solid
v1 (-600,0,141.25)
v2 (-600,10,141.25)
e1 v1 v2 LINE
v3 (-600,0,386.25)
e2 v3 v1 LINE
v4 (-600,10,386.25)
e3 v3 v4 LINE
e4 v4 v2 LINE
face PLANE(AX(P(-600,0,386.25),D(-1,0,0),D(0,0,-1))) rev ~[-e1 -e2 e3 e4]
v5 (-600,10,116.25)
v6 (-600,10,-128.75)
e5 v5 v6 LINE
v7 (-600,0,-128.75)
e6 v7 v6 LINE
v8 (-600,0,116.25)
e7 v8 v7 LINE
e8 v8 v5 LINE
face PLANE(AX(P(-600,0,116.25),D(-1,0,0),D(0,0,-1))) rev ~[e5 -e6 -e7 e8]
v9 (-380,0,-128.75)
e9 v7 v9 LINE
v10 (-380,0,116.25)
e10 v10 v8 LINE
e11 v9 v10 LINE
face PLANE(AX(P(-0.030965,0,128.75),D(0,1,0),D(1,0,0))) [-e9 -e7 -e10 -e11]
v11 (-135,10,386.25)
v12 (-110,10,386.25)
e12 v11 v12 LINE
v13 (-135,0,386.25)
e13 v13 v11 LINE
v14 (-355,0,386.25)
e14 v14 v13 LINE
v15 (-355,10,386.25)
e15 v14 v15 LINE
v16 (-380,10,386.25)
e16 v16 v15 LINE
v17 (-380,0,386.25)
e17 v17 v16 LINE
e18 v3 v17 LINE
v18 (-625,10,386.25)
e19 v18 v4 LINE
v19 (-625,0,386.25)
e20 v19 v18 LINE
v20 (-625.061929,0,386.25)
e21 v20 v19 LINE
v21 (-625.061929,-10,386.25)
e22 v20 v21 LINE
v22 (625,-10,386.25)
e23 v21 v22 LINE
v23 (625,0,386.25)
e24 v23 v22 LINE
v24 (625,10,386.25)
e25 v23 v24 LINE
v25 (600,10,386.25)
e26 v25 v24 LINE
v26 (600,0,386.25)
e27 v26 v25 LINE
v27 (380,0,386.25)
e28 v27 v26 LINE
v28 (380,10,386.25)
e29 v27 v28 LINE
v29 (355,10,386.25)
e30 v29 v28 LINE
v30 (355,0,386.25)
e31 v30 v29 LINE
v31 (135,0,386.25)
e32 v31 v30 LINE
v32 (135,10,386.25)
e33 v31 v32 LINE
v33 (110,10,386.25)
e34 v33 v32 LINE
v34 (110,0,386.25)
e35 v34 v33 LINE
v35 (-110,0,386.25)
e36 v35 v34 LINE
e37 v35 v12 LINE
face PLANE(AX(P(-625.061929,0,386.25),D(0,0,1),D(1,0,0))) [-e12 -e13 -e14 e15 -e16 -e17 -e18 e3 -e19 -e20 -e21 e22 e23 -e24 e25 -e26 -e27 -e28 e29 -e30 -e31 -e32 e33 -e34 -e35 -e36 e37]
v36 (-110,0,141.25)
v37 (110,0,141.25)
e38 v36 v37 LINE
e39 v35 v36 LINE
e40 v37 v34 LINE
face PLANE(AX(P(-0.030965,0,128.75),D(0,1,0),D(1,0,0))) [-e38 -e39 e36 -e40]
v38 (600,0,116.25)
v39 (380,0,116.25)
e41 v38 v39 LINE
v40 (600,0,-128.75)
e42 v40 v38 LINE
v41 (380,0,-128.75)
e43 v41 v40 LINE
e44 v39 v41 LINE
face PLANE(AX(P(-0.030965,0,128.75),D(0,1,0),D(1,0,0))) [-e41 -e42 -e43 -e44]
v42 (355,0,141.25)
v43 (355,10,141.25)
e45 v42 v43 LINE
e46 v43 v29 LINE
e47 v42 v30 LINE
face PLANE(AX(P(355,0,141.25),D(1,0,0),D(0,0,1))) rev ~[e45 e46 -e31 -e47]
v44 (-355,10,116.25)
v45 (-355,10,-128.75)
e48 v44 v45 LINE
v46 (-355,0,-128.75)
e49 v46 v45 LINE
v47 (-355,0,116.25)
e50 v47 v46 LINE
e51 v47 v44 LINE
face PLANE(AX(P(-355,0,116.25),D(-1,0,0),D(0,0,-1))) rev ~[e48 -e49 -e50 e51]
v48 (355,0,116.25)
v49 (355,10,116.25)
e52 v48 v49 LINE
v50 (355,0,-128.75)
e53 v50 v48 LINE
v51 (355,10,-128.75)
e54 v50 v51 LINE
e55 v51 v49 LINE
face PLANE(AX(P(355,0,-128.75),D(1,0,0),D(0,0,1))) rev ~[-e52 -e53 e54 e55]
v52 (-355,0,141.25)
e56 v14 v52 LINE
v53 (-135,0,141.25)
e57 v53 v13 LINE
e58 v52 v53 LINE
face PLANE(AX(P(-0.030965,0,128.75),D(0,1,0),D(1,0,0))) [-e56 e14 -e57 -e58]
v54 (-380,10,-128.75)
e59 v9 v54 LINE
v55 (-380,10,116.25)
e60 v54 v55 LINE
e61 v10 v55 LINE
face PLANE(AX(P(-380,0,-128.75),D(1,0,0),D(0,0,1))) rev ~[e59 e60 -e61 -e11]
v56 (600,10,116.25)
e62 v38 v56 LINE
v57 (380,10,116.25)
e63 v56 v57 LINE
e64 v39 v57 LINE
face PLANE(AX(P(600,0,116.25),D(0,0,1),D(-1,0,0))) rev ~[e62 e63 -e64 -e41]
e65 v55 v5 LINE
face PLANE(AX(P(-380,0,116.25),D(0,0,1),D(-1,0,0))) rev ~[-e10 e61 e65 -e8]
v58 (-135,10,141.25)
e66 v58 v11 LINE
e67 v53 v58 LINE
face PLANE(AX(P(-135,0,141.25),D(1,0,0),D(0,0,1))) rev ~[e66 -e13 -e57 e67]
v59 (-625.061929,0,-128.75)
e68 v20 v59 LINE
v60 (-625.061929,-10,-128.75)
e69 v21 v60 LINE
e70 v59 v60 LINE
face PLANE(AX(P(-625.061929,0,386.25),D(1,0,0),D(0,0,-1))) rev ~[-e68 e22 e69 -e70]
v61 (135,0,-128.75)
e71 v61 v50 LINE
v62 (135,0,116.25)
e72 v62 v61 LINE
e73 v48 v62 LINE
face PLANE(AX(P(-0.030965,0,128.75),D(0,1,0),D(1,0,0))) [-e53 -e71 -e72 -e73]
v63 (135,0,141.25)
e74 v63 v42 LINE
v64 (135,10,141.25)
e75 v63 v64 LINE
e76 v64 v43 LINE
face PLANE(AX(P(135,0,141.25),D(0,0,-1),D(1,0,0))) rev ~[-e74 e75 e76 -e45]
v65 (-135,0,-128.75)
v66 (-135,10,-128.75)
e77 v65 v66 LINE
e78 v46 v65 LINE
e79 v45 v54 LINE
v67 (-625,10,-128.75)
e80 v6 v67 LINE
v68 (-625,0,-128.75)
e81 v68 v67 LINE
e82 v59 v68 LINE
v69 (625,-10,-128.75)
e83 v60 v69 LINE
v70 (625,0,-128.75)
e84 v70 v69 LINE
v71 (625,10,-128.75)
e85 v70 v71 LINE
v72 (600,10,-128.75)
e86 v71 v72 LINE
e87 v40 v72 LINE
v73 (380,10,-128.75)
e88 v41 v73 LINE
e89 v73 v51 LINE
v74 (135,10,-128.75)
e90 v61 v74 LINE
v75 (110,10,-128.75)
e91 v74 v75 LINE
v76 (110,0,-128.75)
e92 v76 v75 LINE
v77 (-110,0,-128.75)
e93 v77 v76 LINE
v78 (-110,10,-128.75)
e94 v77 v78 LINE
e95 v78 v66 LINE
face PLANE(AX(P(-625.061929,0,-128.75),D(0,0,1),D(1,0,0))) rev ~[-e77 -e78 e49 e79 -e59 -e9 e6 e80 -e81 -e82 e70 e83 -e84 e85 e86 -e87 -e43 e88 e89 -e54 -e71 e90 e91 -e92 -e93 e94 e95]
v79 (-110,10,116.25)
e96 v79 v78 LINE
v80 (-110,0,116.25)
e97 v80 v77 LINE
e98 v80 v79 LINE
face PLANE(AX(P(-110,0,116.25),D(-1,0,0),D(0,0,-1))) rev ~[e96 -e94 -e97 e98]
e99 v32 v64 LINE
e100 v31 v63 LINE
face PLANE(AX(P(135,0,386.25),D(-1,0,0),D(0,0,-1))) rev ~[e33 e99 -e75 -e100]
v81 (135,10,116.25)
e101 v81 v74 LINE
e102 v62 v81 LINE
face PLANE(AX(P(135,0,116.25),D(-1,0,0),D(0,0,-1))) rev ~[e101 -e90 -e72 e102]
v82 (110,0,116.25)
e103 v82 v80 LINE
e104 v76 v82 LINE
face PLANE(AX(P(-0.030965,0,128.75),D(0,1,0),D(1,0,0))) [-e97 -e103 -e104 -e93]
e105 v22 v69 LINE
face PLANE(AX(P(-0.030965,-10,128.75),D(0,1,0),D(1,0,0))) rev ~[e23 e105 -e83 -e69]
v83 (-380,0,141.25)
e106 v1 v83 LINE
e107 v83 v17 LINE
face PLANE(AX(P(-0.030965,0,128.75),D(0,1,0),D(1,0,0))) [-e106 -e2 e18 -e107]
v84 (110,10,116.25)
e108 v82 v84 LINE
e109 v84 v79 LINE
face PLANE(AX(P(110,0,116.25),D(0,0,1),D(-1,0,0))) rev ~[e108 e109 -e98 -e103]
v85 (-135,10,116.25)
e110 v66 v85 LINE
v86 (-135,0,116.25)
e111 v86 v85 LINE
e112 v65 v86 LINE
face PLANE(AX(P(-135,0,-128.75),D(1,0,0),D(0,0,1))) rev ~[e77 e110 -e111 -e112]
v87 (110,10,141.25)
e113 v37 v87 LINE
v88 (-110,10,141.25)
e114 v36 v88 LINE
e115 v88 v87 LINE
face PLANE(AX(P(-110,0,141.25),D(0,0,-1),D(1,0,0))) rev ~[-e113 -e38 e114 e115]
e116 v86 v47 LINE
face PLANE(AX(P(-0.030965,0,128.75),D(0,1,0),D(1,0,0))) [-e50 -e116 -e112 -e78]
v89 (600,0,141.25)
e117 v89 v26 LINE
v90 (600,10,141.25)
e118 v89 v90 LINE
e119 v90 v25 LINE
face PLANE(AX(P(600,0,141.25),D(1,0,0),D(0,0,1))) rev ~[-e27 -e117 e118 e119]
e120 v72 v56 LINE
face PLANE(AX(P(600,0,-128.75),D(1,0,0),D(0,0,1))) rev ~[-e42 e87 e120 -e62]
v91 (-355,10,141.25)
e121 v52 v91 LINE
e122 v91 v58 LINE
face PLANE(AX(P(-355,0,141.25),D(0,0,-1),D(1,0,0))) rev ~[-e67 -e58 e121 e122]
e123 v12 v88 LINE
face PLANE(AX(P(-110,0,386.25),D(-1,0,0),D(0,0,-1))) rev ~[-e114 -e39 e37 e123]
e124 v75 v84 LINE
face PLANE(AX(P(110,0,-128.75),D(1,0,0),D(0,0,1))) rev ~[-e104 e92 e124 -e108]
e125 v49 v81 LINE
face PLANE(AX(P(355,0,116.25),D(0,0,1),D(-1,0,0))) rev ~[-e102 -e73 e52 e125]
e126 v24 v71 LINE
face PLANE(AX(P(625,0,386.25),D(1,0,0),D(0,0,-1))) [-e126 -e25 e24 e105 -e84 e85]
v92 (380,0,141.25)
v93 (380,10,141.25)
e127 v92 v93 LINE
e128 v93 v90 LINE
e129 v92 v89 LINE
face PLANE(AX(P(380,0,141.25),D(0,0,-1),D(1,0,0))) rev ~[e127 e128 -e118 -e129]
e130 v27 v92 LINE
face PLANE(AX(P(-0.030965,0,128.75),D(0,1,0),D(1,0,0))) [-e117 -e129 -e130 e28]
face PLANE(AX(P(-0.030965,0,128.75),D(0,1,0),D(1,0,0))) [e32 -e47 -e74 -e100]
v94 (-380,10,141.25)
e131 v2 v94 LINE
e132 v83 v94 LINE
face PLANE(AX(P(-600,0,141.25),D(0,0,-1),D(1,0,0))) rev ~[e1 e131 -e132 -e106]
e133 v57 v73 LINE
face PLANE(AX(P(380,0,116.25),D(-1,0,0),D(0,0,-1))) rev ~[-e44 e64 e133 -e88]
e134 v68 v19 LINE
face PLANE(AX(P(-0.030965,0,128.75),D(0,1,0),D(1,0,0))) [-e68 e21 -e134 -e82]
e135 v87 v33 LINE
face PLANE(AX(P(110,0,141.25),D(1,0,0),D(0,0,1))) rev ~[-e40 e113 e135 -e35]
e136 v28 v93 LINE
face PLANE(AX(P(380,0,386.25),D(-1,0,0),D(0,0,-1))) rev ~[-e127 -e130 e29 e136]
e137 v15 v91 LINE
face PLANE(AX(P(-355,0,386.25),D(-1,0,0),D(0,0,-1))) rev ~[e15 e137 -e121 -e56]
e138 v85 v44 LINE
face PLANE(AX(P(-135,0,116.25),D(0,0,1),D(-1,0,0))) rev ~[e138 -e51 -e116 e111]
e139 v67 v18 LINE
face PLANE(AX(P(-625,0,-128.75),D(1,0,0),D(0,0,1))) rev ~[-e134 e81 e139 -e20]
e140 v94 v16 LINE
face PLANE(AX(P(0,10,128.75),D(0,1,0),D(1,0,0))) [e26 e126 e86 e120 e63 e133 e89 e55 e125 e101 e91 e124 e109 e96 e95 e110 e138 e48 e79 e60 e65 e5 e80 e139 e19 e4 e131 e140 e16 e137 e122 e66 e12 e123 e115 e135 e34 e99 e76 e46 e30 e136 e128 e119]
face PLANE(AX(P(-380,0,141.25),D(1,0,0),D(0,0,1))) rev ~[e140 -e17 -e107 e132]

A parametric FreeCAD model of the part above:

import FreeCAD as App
import Part
import Sketcher

V = App.Vector
Q = App.Units.Quantity

doc = App.newDocument("Part")
body = doc.addObject("PartDesign::Body", "Body")

# Sketch on XZ plane
sketch1 = body.newObject("Sketcher::SketchObject", "Sketch")
sketch1.AttachmentSupport = (doc.getObject("XZ_Plane"), [""])
sketch1.MapMode = "FlatFace"
sketch1.addGeometry(Part.LineSegment(V(-110, -129, 0), V(-135, -129, 0)), False)
sketch1.addGeometry(Part.LineSegment(V(-135, -129, 0), V(-135, 116, 0)), False)
sketch1.addGeometry(Part.LineSegment(V(-135, 116, 0), V(-355, 116, 0)), False)
sketch1.addGeometry(Part.LineSegment(V(-355, 116, 0), V(-355, -129, 0)), False)
sketch1.addGeometry(Part.LineSegment(V(-355, -129, 0), V(-380, -129, 0)), False)
sketch1.addGeometry(Part.LineSegment(V(-380, -129, 0), V(-380, 116, 0)), False)
sketch1.addGeometry(Part.LineSegment(V(-380, 116, 0), V(-600, 116, 0)), False)
sketch1.addGeometry(Part.LineSegment(V(-600, 116, 0), V(-600, -129, 0)), False)
sketch1.addGeometry(Part.LineSegment(V(-600, -129, 0), V(-625, -129, 0)), False)
sketch1.addGeometry(Part.LineSegment(V(-625, -129, 0), V(-625, 386, 0)), False)
sketch1.addGeometry(Part.LineSegment(V(-625, 386, 0), V(-600, 386, 0)), False)
sketch1.addGeometry(Part.LineSegment(V(-600, 386, 0), V(-600, 141, 0)), False)
sketch1.addGeometry(Part.LineSegment(V(-600, 141, 0), V(-380, 141, 0)), False)
sketch1.addGeometry(Part.LineSegment(V(-380, 141, 0), V(-380, 386, 0)), False)
sketch1.addGeometry(Part.LineSegment(V(-380, 386, 0), V(-355, 386, 0)), False)
sketch1.addGeometry(Part.LineSegment(V(-355, 386, 0), V(-355, 141, 0)), False)
sketch1.addGeometry(Part.LineSegment(V(-355, 141, 0), V(-135, 141, 0)), False)
sketch1.addGeometry(Part.LineSegment(V(-135, 141, 0), V(-135, 386, 0)), False)
sketch1.addGeometry(Part.LineSegment(V(-135, 386, 0), V(-110, 386, 0)), False)
sketch1.addGeometry(Part.LineSegment(V(-110, 386, 0), V(-110, 141, 0)), False)
sketch1.addGeometry(Part.LineSegment(V(-110, 141, 0), V(110, 141, 0)), False)
sketch1.addGeometry(Part.LineSegment(V(110, 141, 0), V(110, 386, 0)), False)
sketch1.addGeometry(Part.LineSegment(V(110, 386, 0), V(135, 386, 0)), False)
sketch1.addGeometry(Part.LineSegment(V(135, 386, 0), V(135, 141, 0)), False)
sketch1.addGeometry(Part.LineSegment(V(135, 141, 0), V(355, 141, 0)), False)
sketch1.addGeometry(Part.LineSegment(V(355, 141, 0), V(355, 386, 0)), False)
sketch1.addGeometry(Part.LineSegment(V(355, 386, 0), V(380, 386, 0)), False)
sketch1.addGeometry(Part.LineSegment(V(380, 386, 0), V(380, 141, 0)), False)
sketch1.addGeometry(Part.LineSegment(V(380, 141, 0), V(600, 141, 0)), False)
sketch1.addGeometry(Part.LineSegment(V(600, 141, 0), V(600, 386, 0)), False)
sketch1.addGeometry(Part.LineSegment(V(600, 386, 0), V(625, 386, 0)), False)
sketch1.addGeometry(Part.LineSegment(V(625, 386, 0), V(625, -129, 0)), False)
sketch1.addGeometry(Part.LineSegment(V(625, -129, 0), V(600, -129, 0)), False)
sketch1.addGeometry(Part.LineSegment(V(600, -129, 0), V(600, 116, 0)), False)
sketch1.addGeometry(Part.LineSegment(V(600, 116, 0), V(380, 116, 0)), False)
sketch1.addGeometry(Part.LineSegment(V(380, 116, 0), V(380, -129, 0)), False)
sketch1.addGeometry(Part.LineSegment(V(380, -129, 0), V(355, -129, 0)), False)
sketch1.addGeometry(Part.LineSegment(V(355, -129, 0), V(355, 116, 0)), False)
sketch1.addGeometry(Part.LineSegment(V(355, 116, 0), V(135, 116, 0)), False)
sketch1.addGeometry(Part.LineSegment(V(135, 116, 0), V(135, -129, 0)), False)
sketch1.addGeometry(Part.LineSegment(V(135, -129, 0), V(110, -129, 0)), False)
sketch1.addGeometry(Part.LineSegment(V(110, -129, 0), V(110, 116, 0)), False)
sketch1.addGeometry(Part.LineSegment(V(110, 116, 0), V(-110, 116, 0)), False)
sketch1.addGeometry(Part.LineSegment(V(-110, 116, 0), V(-110, -129, 0)), False)
sketch1.addConstraint(Sketcher.Constraint("Coincident", 0, 2, 1, 1))
sketch1.addConstraint(Sketcher.Constraint("Coincident", 1, 2, 2, 1))
sketch1.addConstraint(Sketcher.Constraint("Coincident", 2, 2, 3, 1))
sketch1.addConstraint(Sketcher.Constraint("Coincident", 3, 2, 4, 1))
sketch1.addConstraint(Sketcher.Constraint("Coincident", 4, 2, 5, 1))
sketch1.addConstraint(Sketcher.Constraint("Coincident", 5, 2, 6, 1))
sketch1.addConstraint(Sketcher.Constraint("Coincident", 6, 2, 7, 1))
sketch1.addConstraint(Sketcher.Constraint("Coincident", 7, 2, 8, 1))
sketch1.addConstraint(Sketcher.Constraint("Coincident", 8, 2, 9, 1))
sketch1.addConstraint(Sketcher.Constraint("Coincident", 9, 2, 10, 1))
sketch1.addConstraint(Sketcher.Constraint("Coincident", 10, 2, 11, 1))
sketch1.addConstraint(Sketcher.Constraint("Coincident", 11, 2, 12, 1))
sketch1.addConstraint(Sketcher.Constraint("Coincident", 12, 2, 13, 1))
sketch1.addConstraint(Sketcher.Constraint("Coincident", 13, 2, 14, 1))
sketch1.addConstraint(Sketcher.Constraint("Coincident", 14, 2, 15, 1))
sketch1.addConstraint(Sketcher.Constraint("Coincident", 15, 2, 16, 1))
sketch1.addConstraint(Sketcher.Constraint("Coincident", 16, 2, 17, 1))
sketch1.addConstraint(Sketcher.Constraint("Coincident", 17, 2, 18, 1))
sketch1.addConstraint(Sketcher.Constraint("Coincident", 18, 2, 19, 1))
sketch1.addConstraint(Sketcher.Constraint("Coincident", 19, 2, 20, 1))
sketch1.addConstraint(Sketcher.Constraint("Coincident", 20, 2, 21, 1))
sketch1.addConstraint(Sketcher.Constraint("Coincident", 21, 2, 22, 1))
sketch1.addConstraint(Sketcher.Constraint("Coincident", 22, 2, 23, 1))
sketch1.addConstraint(Sketcher.Constraint("Coincident", 23, 2, 24, 1))
sketch1.addConstraint(Sketcher.Constraint("Coincident", 24, 2, 25, 1))
sketch1.addConstraint(Sketcher.Constraint("Coincident", 25, 2, 26, 1))
sketch1.addConstraint(Sketcher.Constraint("Coincident", 26, 2, 27, 1))
sketch1.addConstraint(Sketcher.Constraint("Coincident", 27, 2, 28, 1))
sketch1.addConstraint(Sketcher.Constraint("Coincident", 28, 2, 29, 1))
sketch1.addConstraint(Sketcher.Constraint("Coincident", 29, 2, 30, 1))
sketch1.addConstraint(Sketcher.Constraint("Coincident", 30, 2, 31, 1))
sketch1.addConstraint(Sketcher.Constraint("Coincident", 31, 2, 32, 1))
sketch1.addConstraint(Sketcher.Constraint("Coincident", 32, 2, 33, 1))
sketch1.addConstraint(Sketcher.Constraint("Coincident", 33, 2, 34, 1))
sketch1.addConstraint(Sketcher.Constraint("Coincident", 34, 2, 35, 1))
sketch1.addConstraint(Sketcher.Constraint("Coincident", 35, 2, 36, 1))
sketch1.addConstraint(Sketcher.Constraint("Coincident", 36, 2, 37, 1))
sketch1.addConstraint(Sketcher.Constraint("Coincident", 37, 2, 38, 1))
sketch1.addConstraint(Sketcher.Constraint("Coincident", 38, 2, 39, 1))
sketch1.addConstraint(Sketcher.Constraint("Coincident", 39, 2, 40, 1))
sketch1.addConstraint(Sketcher.Constraint("Coincident", 40, 2, 41, 1))
sketch1.addConstraint(Sketcher.Constraint("Coincident", 41, 2, 42, 1))
sketch1.addConstraint(Sketcher.Constraint("Coincident", 42, 2, 43, 1))
sketch1.addConstraint(Sketcher.Constraint("Coincident", 43, 2, 0, 1))
sketch1.addConstraint(Sketcher.Constraint("Horizontal", 0))
sketch1.addConstraint(Sketcher.Constraint("Vertical", 1))
sketch1.addConstraint(Sketcher.Constraint("Horizontal", 2))
sketch1.addConstraint(Sketcher.Constraint("Vertical", 3))
sketch1.addConstraint(Sketcher.Constraint("Horizontal", 4))
sketch1.addConstraint(Sketcher.Constraint("Vertical", 5))
sketch1.addConstraint(Sketcher.Constraint("Horizontal", 6))
sketch1.addConstraint(Sketcher.Constraint("Vertical", 7))
sketch1.addConstraint(Sketcher.Constraint("Horizontal", 8))
sketch1.addConstraint(Sketcher.Constraint("Vertical", 9))
sketch1.addConstraint(Sketcher.Constraint("Horizontal", 10))
sketch1.addConstraint(Sketcher.Constraint("Vertical", 11))
sketch1.addConstraint(Sketcher.Constraint("Horizontal", 12))
sketch1.addConstraint(Sketcher.Constraint("Vertical", 13))
sketch1.addConstraint(Sketcher.Constraint("Horizontal", 14))
sketch1.addConstraint(Sketcher.Constraint("Vertical", 15))
sketch1.addConstraint(Sketcher.Constraint("Horizontal", 16))
sketch1.addConstraint(Sketcher.Constraint("Vertical", 17))
sketch1.addConstraint(Sketcher.Constraint("Horizontal", 18))
sketch1.addConstraint(Sketcher.Constraint("Vertical", 19))
sketch1.addConstraint(Sketcher.Constraint("Horizontal", 20))
sketch1.addConstraint(Sketcher.Constraint("Vertical", 21))
sketch1.addConstraint(Sketcher.Constraint("Horizontal", 22))
sketch1.addConstraint(Sketcher.Constraint("Vertical", 23))
sketch1.addConstraint(Sketcher.Constraint("Horizontal", 24))
sketch1.addConstraint(Sketcher.Constraint("Vertical", 25))
sketch1.addConstraint(Sketcher.Constraint("Horizontal", 26))
sketch1.addConstraint(Sketcher.Constraint("Vertical", 27))
sketch1.addConstraint(Sketcher.Constraint("Horizontal", 28))
sketch1.addConstraint(Sketcher.Constraint("Vertical", 29))
sketch1.addConstraint(Sketcher.Constraint("Horizontal", 30))
sketch1.addConstraint(Sketcher.Constraint("Vertical", 31))
sketch1.addConstraint(Sketcher.Constraint("Horizontal", 32))
sketch1.addConstraint(Sketcher.Constraint("Vertical", 33))
sketch1.addConstraint(Sketcher.Constraint("Horizontal", 34))
sketch1.addConstraint(Sketcher.Constraint("Vertical", 35))
sketch1.addConstraint(Sketcher.Constraint("Horizontal", 36))
sketch1.addConstraint(Sketcher.Constraint("Vertical", 37))
sketch1.addConstraint(Sketcher.Constraint("Horizontal", 38))
sketch1.addConstraint(Sketcher.Constraint("Vertical", 39))
sketch1.addConstraint(Sketcher.Constraint("Horizontal", 40))
sketch1.addConstraint(Sketcher.Constraint("Vertical", 41))
sketch1.addConstraint(Sketcher.Constraint("Horizontal", 42))
sketch1.addConstraint(Sketcher.Constraint("Vertical", 43))
sketch1.addConstraint(Sketcher.Constraint("Symmetric", 18, 2, 21, 2, -2))
sketch1.addConstraint(Sketcher.Constraint("Symmetric", 16, 2, 23, 2, -2))
sketch1.addConstraint(Sketcher.Constraint("Symmetric", 14, 2, 25, 2, -2))
sketch1.addConstraint(Sketcher.Constraint("Symmetric", 12, 2, 27, 2, -2))
sketch1.addConstraint(Sketcher.Constraint("Symmetric", 10, 2, 29, 2, -2))
sketch1.addConstraint(Sketcher.Constraint("Symmetric", 8, 2, 31, 2, -2))
sketch1.addConstraint(Sketcher.Constraint("Symmetric", 6, 2, 33, 2, -2))
sketch1.addConstraint(Sketcher.Constraint("Symmetric", 4, 2, 35, 2, -2))
sketch1.addConstraint(Sketcher.Constraint("Symmetric", 2, 2, 37, 2, -2))
sketch1.addConstraint(Sketcher.Constraint("Symmetric", 0, 2, 39, 2, -2))
sketch1.addConstraint(Sketcher.Constraint("Horizontal", 0, 2, 3, 2))
sketch1.addConstraint(Sketcher.Constraint("Horizontal", 2, 2, 5, 2))
sketch1.addConstraint(Sketcher.Constraint("Horizontal", 4, 2, 7, 2))
sketch1.addConstraint(Sketcher.Constraint("Horizontal", 10, 2, 13, 2))
sketch1.addConstraint(Sketcher.Constraint("Horizontal", 12, 2, 15, 2))
sketch1.addConstraint(Sketcher.Constraint("Horizontal", 14, 2, 17, 2))
sketch1.addConstraint(Sketcher.Constraint("Horizontal", 16, 2, 19, 2))
sketch1.addConstraint(Sketcher.Constraint("Horizontal", 38, 2, 41, 2))
sketch1.addConstraint(Sketcher.Constraint("Vertical", 7, 2, 10, 2))
sketch1.addConstraint(Sketcher.Constraint("Vertical", 5, 2, 12, 2))
sketch1.addConstraint(Sketcher.Constraint("Vertical", 3, 2, 14, 2))
sketch1.addConstraint(Sketcher.Constraint("Vertical", 1, 2, 16, 2))
sketch1.addConstraint(Sketcher.Constraint("Vertical", 21, 2, 40, 2))
sketch1.addConstraint(Sketcher.Constraint("Vertical", 19, 2, 42, 2))
sketch1.addConstraint(Sketcher.Constraint("Equal", 0, 4))
sketch1.addConstraint(Sketcher.Constraint("Equal", 2, 6))
sketch1.addConstraint(Sketcher.Constraint("Equal", 4, 8))
sketch1.addConstraint(Sketcher.Constraint("Equal", 16, 20))
sketch1.addConstraint(Sketcher.Constraint("Equal", 7, 11))
sketch1.addConstraint(Sketcher.Constraint("DistanceX", 0, 2, 0, 1, Q("25 mm")))
sketch1.addConstraint(Sketcher.Constraint("DistanceX", 2, 2, 2, 1, Q("220 mm")))
sketch1.addConstraint(Sketcher.Constraint("DistanceY", 1, 1, 1, 2, Q("245 mm")))
sketch1.addConstraint(Sketcher.Constraint("DistanceY", 9, 1, 9, 2, Q("515 mm")))
sketch1.addConstraint(Sketcher.Constraint("DistanceY", 0, 2, -1, 1, Q("128.75 mm")))
pad1 = body.newObject("PartDesign::Pad", "Pad")
pad1.Profile = sketch1
pad1.Length = 10
pad1.Reversed = True

# Sketch on XZ plane
sketch2 = body.newObject("Sketcher::SketchObject", "Sketch001")
sketch2.AttachmentSupport = (doc.getObject("XZ_Plane"), [""])
sketch2.MapMode = "FlatFace"
sketch2.addGeometry(Part.LineSegment(V(-625, -129, 0), V(-625, 386, 0)), False)
sketch2.addGeometry(Part.LineSegment(V(-625, 386, 0), V(625, 386, 0)), False)
sketch2.addGeometry(Part.LineSegment(V(625, 386, 0), V(625, -129, 0)), False)
sketch2.addGeometry(Part.LineSegment(V(625, -129, 0), V(-625, -129, 0)), False)
sketch2.addConstraint(Sketcher.Constraint("Coincident", 0, 2, 1, 1))
sketch2.addConstraint(Sketcher.Constraint("Coincident", 1, 2, 2, 1))
sketch2.addConstraint(Sketcher.Constraint("Coincident", 2, 2, 3, 1))
sketch2.addConstraint(Sketcher.Constraint("Coincident", 3, 2, 0, 1))
sketch2.addConstraint(Sketcher.Constraint("Vertical", 0))
sketch2.addConstraint(Sketcher.Constraint("Horizontal", 1))
sketch2.addConstraint(Sketcher.Constraint("Vertical", 2))
sketch2.addConstraint(Sketcher.Constraint("Horizontal", 3))
sketch2.addConstraint(Sketcher.Constraint("DistanceY", 0, 1, 0, 2, Q("515 mm")))
sketch2.addConstraint(Sketcher.Constraint("DistanceX", -1, 1, 1, 2, Q("625 mm")))
sketch2.addConstraint(Sketcher.Constraint("DistanceY", -1, 1, 0, 2, Q("386.25 mm")))
sketch2.addConstraint(Sketcher.Constraint("DistanceX", 1, 1, 1, 2, Q("1250.061929 mm")))
pad2 = body.newObject("PartDesign::Pad", "Pad001")
pad2.Profile = sketch2
pad2.Length = 10

doc.recompute()
